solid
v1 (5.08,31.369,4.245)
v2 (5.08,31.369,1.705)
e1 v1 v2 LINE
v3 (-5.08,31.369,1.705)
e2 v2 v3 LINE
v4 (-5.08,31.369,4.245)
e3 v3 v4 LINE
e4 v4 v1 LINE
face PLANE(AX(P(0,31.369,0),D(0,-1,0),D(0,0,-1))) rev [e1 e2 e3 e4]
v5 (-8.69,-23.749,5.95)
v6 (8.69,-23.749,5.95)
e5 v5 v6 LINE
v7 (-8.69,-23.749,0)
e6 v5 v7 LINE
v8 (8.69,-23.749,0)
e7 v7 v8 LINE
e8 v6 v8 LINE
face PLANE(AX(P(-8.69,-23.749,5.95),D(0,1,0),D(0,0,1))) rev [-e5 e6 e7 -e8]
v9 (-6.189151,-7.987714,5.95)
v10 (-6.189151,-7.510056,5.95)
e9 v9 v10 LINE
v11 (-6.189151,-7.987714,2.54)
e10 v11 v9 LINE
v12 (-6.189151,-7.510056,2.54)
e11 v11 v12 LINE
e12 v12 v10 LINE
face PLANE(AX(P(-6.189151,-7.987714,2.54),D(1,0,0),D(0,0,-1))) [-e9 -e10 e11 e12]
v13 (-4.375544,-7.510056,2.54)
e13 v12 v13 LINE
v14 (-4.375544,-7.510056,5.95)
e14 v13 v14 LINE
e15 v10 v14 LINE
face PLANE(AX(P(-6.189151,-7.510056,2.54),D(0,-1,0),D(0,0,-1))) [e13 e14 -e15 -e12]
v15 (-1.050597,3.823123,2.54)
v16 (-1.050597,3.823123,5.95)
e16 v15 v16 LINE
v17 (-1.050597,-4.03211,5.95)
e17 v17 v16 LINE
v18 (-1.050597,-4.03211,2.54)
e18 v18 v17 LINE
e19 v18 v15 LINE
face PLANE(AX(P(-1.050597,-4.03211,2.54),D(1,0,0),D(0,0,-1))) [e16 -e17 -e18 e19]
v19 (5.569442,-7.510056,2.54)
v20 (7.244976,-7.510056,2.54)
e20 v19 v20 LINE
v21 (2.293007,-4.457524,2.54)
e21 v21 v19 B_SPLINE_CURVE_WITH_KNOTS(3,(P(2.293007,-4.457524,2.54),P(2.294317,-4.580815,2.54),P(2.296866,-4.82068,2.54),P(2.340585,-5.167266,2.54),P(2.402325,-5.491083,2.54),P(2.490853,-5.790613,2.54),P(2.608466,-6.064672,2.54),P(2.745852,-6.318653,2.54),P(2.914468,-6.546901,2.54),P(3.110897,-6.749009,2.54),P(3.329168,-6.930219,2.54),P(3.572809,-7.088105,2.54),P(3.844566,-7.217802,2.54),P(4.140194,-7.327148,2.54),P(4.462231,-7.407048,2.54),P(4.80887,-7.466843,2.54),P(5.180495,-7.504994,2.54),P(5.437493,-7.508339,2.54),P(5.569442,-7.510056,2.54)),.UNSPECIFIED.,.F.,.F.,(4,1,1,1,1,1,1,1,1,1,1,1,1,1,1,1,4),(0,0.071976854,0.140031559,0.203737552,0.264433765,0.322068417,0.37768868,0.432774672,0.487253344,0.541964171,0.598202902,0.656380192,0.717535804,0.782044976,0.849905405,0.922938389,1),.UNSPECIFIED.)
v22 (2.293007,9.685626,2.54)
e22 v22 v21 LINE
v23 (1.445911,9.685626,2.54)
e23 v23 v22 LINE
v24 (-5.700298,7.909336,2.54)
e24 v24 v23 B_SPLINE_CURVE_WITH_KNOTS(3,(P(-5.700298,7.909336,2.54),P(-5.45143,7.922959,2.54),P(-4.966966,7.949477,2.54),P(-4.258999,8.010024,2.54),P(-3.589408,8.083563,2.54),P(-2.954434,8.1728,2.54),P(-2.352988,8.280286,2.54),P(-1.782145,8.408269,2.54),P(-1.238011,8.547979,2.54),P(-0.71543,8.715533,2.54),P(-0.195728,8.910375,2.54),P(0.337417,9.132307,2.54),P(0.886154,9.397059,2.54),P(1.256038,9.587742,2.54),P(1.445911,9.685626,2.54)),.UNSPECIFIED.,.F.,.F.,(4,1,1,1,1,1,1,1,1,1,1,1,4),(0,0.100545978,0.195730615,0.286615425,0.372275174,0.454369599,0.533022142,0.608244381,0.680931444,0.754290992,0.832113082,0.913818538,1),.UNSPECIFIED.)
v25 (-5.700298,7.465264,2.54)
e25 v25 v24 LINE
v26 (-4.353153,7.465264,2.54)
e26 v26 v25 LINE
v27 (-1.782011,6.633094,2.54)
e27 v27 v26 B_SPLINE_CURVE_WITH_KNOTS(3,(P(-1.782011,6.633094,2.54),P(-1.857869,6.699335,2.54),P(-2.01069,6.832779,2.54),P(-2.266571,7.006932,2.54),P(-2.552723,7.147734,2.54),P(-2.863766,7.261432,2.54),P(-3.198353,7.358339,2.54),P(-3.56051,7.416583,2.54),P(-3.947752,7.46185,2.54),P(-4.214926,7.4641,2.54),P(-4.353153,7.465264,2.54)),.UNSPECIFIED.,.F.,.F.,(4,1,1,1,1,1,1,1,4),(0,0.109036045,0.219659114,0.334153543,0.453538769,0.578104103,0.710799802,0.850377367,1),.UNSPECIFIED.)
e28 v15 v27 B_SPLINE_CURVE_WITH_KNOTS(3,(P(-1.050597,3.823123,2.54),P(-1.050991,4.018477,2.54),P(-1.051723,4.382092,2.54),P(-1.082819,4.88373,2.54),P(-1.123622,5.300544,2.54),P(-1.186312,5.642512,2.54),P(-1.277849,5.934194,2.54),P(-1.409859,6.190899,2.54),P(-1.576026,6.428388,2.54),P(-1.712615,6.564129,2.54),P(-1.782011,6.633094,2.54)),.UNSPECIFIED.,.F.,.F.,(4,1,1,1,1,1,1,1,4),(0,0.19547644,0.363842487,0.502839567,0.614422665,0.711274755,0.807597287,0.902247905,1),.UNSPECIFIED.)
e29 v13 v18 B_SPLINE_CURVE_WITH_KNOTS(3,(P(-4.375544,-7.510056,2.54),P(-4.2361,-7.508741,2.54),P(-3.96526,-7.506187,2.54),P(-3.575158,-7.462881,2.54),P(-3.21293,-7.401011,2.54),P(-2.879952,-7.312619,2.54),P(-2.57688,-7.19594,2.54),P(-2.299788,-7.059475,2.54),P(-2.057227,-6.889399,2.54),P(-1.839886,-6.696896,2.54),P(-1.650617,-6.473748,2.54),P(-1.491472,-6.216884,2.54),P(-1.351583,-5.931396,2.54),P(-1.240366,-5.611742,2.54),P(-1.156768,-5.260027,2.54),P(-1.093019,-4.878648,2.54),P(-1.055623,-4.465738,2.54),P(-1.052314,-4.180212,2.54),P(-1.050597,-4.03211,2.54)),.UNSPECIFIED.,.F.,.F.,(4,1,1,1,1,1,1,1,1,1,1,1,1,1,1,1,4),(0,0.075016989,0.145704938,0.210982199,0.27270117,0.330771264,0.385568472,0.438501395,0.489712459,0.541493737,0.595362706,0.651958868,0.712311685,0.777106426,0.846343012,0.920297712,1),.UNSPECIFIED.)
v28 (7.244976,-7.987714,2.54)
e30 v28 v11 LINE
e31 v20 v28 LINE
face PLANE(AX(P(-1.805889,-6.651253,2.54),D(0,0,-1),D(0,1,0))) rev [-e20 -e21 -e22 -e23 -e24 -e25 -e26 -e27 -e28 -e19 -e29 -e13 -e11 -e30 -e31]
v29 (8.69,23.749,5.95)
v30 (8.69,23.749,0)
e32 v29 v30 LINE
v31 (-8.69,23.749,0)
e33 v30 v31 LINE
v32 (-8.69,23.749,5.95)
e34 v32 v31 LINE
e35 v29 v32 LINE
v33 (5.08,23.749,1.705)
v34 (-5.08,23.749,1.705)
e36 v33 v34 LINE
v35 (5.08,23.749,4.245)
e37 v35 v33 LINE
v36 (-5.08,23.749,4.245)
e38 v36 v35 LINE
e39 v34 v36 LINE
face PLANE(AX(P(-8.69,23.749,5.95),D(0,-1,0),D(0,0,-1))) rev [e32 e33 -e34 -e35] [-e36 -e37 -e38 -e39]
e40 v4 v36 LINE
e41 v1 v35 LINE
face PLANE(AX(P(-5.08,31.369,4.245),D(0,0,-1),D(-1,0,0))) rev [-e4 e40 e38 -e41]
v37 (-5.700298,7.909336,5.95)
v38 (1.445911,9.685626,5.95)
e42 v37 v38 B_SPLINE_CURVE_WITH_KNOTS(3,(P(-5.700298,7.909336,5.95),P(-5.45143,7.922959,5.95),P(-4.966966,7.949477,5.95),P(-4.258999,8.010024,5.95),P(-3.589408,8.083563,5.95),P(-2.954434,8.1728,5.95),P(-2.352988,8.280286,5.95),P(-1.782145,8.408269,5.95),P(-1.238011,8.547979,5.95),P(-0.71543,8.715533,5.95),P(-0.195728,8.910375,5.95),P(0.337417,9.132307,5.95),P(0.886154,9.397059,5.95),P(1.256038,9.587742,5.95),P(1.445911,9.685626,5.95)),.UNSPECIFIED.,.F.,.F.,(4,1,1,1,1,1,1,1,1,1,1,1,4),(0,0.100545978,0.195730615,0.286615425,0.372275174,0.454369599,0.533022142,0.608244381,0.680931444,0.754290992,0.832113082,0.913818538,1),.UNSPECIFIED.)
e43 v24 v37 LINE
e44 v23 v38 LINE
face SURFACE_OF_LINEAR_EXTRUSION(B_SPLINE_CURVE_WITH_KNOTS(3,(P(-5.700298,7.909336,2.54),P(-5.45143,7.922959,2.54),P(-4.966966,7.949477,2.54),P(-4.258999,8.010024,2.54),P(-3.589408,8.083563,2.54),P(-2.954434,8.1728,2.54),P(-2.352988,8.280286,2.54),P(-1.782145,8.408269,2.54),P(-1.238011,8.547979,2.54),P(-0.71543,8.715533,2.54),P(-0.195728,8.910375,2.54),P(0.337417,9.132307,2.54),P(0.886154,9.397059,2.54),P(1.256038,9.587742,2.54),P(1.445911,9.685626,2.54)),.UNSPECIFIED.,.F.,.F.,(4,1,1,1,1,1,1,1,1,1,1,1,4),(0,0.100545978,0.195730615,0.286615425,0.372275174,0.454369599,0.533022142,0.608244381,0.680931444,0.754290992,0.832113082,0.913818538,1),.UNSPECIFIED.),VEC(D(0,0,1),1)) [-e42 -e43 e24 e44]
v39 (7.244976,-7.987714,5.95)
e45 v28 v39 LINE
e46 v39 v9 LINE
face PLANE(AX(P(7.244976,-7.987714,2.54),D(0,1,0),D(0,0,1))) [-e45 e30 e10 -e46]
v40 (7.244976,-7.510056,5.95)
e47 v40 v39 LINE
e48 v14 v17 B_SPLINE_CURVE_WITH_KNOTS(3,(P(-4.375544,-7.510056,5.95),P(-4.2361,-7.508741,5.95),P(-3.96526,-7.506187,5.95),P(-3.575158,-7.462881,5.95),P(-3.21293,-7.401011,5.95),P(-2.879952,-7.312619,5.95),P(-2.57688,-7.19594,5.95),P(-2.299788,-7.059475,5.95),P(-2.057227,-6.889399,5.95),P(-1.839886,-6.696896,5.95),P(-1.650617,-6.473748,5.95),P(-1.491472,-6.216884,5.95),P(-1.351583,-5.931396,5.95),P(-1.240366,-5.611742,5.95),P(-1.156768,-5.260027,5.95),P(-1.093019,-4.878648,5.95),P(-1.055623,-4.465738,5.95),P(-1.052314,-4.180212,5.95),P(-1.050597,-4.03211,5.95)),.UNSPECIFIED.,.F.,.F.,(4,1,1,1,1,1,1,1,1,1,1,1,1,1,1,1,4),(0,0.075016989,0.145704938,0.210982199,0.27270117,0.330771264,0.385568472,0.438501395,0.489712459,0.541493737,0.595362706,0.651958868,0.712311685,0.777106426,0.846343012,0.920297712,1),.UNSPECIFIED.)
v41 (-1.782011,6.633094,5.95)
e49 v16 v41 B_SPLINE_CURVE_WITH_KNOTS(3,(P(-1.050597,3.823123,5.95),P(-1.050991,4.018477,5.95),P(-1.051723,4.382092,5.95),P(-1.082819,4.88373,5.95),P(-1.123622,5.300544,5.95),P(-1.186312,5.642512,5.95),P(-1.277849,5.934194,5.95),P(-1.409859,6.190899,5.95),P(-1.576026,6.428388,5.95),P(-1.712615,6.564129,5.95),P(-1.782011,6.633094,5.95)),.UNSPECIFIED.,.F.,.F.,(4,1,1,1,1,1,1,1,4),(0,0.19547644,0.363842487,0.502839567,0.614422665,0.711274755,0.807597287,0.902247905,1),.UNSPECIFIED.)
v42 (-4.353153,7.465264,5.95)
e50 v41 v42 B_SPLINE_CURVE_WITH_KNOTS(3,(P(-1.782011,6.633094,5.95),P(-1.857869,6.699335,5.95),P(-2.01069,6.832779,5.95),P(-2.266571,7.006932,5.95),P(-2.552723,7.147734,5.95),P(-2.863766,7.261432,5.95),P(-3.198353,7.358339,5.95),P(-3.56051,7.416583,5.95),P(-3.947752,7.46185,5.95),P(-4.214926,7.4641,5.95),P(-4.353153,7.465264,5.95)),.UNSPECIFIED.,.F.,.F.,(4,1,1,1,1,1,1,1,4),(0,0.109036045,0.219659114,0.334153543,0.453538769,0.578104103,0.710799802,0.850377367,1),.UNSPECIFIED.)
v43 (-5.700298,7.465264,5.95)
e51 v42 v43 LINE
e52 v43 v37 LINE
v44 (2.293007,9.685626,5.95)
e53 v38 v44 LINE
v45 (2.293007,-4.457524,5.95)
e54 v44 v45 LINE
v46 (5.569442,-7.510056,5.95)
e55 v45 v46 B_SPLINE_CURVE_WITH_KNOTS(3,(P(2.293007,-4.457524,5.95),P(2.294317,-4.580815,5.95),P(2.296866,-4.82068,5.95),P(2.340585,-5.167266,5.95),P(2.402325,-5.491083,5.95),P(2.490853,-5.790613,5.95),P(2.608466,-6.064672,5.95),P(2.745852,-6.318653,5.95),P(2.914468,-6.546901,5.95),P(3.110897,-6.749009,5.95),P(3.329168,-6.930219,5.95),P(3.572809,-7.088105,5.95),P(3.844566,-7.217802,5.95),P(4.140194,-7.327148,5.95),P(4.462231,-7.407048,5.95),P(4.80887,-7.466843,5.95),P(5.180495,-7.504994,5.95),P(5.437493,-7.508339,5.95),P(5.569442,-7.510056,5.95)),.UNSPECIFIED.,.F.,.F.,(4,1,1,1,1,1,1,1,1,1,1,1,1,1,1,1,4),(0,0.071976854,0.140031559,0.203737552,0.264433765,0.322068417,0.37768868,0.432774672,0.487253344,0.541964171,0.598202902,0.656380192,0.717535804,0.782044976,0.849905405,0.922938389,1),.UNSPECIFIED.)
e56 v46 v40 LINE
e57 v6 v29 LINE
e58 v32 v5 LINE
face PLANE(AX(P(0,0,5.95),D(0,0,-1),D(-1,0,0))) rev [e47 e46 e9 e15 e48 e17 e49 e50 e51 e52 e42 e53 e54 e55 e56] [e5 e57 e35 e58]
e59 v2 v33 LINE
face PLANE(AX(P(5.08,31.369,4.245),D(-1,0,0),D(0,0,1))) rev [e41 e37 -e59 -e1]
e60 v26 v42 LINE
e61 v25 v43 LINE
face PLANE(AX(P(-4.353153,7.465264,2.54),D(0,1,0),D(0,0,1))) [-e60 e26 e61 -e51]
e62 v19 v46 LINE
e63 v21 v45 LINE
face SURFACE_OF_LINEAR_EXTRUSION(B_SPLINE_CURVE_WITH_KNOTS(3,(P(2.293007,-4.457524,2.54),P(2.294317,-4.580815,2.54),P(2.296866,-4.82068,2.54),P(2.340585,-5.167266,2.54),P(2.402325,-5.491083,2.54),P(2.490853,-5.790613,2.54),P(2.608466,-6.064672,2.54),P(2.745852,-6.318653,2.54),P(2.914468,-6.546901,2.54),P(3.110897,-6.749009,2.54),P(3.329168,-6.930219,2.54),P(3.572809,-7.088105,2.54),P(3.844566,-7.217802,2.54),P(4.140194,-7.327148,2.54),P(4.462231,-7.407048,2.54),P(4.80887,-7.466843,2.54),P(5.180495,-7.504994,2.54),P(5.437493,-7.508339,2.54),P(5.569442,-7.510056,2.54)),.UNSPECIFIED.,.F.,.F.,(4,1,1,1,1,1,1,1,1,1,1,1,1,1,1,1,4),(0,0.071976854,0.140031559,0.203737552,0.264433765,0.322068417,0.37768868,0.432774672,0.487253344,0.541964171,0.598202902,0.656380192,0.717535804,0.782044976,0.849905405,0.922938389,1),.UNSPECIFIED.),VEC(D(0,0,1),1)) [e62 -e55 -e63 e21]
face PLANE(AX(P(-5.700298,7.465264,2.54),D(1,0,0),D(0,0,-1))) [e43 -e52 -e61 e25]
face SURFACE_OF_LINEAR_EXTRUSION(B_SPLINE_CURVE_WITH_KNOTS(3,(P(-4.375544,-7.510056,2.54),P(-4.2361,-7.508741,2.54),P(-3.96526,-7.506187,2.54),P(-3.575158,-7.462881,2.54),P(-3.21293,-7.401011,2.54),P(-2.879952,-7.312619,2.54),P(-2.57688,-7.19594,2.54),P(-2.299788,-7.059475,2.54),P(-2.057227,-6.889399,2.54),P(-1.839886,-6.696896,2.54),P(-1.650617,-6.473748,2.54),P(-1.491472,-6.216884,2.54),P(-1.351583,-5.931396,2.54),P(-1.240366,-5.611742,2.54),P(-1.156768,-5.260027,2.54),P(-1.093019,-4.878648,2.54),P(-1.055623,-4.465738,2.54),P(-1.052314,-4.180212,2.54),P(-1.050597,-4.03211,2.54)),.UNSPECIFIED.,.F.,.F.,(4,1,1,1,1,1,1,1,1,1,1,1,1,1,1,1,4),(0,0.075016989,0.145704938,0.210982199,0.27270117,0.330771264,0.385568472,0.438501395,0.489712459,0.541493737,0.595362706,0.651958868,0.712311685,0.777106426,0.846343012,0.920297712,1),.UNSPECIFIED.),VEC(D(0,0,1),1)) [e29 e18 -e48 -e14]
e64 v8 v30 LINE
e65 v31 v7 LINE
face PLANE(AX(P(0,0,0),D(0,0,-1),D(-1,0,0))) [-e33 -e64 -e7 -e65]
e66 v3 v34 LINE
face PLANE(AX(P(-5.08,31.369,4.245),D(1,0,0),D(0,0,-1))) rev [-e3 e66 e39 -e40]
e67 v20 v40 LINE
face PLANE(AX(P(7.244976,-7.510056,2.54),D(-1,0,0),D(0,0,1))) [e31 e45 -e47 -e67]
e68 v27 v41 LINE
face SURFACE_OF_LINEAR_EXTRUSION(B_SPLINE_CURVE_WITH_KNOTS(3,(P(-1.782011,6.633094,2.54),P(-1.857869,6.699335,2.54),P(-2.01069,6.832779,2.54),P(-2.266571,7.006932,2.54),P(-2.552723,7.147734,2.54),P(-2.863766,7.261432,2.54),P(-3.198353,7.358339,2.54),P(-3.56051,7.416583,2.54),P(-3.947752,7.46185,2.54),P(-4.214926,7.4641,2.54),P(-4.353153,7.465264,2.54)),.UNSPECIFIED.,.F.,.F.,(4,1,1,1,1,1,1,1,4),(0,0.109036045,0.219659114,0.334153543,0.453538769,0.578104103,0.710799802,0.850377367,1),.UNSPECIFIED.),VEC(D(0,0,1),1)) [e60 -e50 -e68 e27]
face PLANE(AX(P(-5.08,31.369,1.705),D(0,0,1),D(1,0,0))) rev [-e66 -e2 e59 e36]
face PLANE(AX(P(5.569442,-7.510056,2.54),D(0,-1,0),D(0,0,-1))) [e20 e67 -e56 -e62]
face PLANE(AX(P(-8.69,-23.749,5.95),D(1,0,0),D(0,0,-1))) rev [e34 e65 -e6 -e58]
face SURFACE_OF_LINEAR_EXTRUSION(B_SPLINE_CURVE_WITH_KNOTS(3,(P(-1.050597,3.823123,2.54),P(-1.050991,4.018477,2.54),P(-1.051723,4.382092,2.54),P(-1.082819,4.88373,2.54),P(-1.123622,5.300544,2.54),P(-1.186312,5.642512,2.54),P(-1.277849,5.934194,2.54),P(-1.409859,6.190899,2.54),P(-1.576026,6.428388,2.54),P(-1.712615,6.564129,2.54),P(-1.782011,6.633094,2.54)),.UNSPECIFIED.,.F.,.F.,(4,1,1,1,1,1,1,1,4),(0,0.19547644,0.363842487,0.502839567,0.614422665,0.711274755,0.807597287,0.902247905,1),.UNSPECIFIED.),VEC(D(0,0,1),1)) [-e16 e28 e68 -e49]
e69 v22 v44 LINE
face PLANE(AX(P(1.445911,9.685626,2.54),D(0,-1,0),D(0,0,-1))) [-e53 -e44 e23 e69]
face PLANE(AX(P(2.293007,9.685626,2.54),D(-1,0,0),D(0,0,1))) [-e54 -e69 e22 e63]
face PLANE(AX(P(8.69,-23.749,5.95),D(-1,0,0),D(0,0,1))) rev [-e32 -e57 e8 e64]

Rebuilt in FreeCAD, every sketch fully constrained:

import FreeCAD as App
import Part
import Sketcher
from FreeCAD import Vector
Q = App.Units.Quantity

doc = App.newDocument("Part")
body = doc.addObject("PartDesign::Body", "Body")

sketch1 = body.newObject("Sketcher::SketchObject", "Sketch")
sketch1.AttachmentSupport = (doc.getObject("XY_Plane"), [""])
sketch1.MapMode = "FlatFace"
sketch1.addGeometry([
    Part.LineSegment(Vector(-9, 24, 0), Vector(-9, -24, 0)),
    Part.LineSegment(Vector(-9, -24, 0), Vector(9, -24, 0)),
    Part.LineSegment(Vector(9, -24, 0), Vector(9, 24, 0)),
    Part.LineSegment(Vector(9, 24, 0), Vector(-9, 24, 0)),
], False)
sketch1.addConstraint([
    Sketcher.Constraint("Coincident", 0, 2, 1, 1),
    Sketcher.Constraint("Coincident", 1, 2, 2, 1),
    Sketcher.Constraint("Coincident", 2, 2, 3, 1),
    Sketcher.Constraint("Coincident", 3, 2, 0, 1),
    Sketcher.Constraint("Vertical", 0),
    Sketcher.Constraint("Horizontal", 1),
    Sketcher.Constraint("Vertical", 2),
    Sketcher.Constraint("Horizontal", 3),
    Sketcher.Constraint("Symmetric", 0, 2, 2, 2, -1, 1),
    Sketcher.Constraint("DistanceY", 0, 2, 0, 1, Q("1.87 in")),
    Sketcher.Constraint("DistanceX", 1, 1, 1, 2, Q("17.38 mm")),
])
pad1 = body.newObject("PartDesign::Pad", "Pad")
pad1.Profile = sketch1
pad1.Length = 5.95

sketch2 = body.newObject("Sketcher::SketchObject", "Sketch001")
sketch2.AttachmentSupport = (doc.getObject("XY_Plane"), [""])
sketch2.MapMode = "FlatFace"
sketch2.AttachmentOffset = App.Placement(Vector(0, 0, 5.95), App.Rotation())
sketch2.addGeometry([
    Part.LineSegment(Vector(-4.375544, -7.510056, 0), Vector(-6.189151, -7.510056, 0)),
    Part.LineSegment(Vector(-6.189151, -7.510056, 0), Vector(-6.189151, -7.987714, 0)),
    Part.LineSegment(Vector(-6.189151, -7.987714, 0), Vector(7.244976, -7.987714, 0)),
    Part.LineSegment(Vector(7.244976, -7.987714, 0), Vector(7.244976, -7.510056, 0)),
    Part.LineSegment(Vector(7.244976, -7.510056, 0), Vector(5.569442, -7.510056, 0)),
    Part.BSplineCurve([Vector(2.293007, -4.457524, 0), Vector(2.294317, -4.580815, 0), Vector(2.296866, -4.82068, 0), Vector(2.340585, -5.167266, 0), Vector(2.402325, -5.491083, 0), Vector(2.490853, -5.790613, 0), Vector(2.608466, -6.064672, 0), Vector(2.745852, -6.318653, 0), Vector(2.914468, -6.546901, 0), Vector(3.110897, -6.749009, 0), Vector(3.329168, -6.930219, 0), Vector(3.572809, -7.088105, 0), Vector(3.844566, -7.217802, 0), Vector(4.140194, -7.327148, 0), Vector(4.462231, -7.407048, 0), Vector(4.80887, -7.466843, 0), Vector(5.180495, -7.504994, 0), Vector(5.437493, -7.508339, 0), Vector(5.569442, -7.510056, 0)], [4, 1, 1, 1, 1, 1, 1, 1, 1, 1, 1, 1, 1, 1, 1, 1, 4], [0, 1.151629664, 2.240504938, 3.259800832, 4.230940235, 5.153094675, 6.043018888, 6.924394745, 7.796053501, 8.671426729, 9.571246426, 10.502083077, 11.480572872, 12.512719618, 13.598486478, 14.767014217, 16], False, 3, [1, 1, 1, 1, 1, 1, 1, 1, 1, 1, 1, 1, 1, 1, 1, 1, 1, 1, 1], False),
    Part.LineSegment(Vector(2.293007, -4.457524, 0), Vector(2.293007, 9.685626, 0)),
    Part.LineSegment(Vector(2.293007, 9.685626, 0), Vector(1.445911, 9.685626, 0)),
    Part.BSplineCurve([Vector(-5.700298, 7.909336, 0), Vector(-5.45143, 7.922959, 0), Vector(-4.966966, 7.949477, 0), Vector(-4.258999, 8.010024, 0), Vector(-3.589408, 8.083563, 0), Vector(-2.954434, 8.1728, 0), Vector(-2.352988, 8.280286, 0), Vector(-1.782145, 8.408269, 0), Vector(-1.238011, 8.547979, 0), Vector(-0.71543, 8.715533, 0), Vector(-0.195728, 8.910375, 0), Vector(0.337417, 9.132307, 0), Vector(0.886154, 9.397059, 0), Vector(1.256038, 9.587742, 0), Vector(1.445911, 9.685626, 0)], [4, 1, 1, 1, 1, 1, 1, 1, 1, 1, 1, 1, 4], [0, 1.206551741, 2.348767378, 3.4393851, 4.467302093, 5.452435193, 6.396265705, 7.29893257, 8.171177332, 9.051491902, 9.98535699, 10.965822455, 12], False, 3, [1, 1, 1, 1, 1, 1, 1, 1, 1, 1, 1, 1, 1, 1, 1], False),
    Part.LineSegment(Vector(-5.700298, 7.909336, 0), Vector(-5.700298, 7.465264, 0)),
    Part.LineSegment(Vector(-5.700298, 7.465264, 0), Vector(-4.353153, 7.465264, 0)),
    Part.BSplineCurve([Vector(-1.782011, 6.633094, 0), Vector(-1.857869, 6.699335, 0), Vector(-2.01069, 6.832779, 0), Vector(-2.266571, 7.006932, 0), Vector(-2.552723, 7.147734, 0), Vector(-2.863766, 7.261432, 0), Vector(-3.198353, 7.358339, 0), Vector(-3.56051, 7.416583, 0), Vector(-3.947752, 7.46185, 0), Vector(-4.214926, 7.4641, 0), Vector(-4.353153, 7.465264, 0)], [4, 1, 1, 1, 1, 1, 1, 1, 4], [0, 0.872288361, 1.757272915, 2.673228345, 3.628310148, 4.624832827, 5.686398416, 6.803018934, 8], False, 3, [1, 1, 1, 1, 1, 1, 1, 1, 1, 1, 1], False),
    Part.BSplineCurve([Vector(-1.050597, 3.823123, 0), Vector(-1.050991, 4.018477, 0), Vector(-1.051723, 4.382092, 0), Vector(-1.082819, 4.88373, 0), Vector(-1.123622, 5.300544, 0), Vector(-1.186312, 5.642512, 0), Vector(-1.277849, 5.934194, 0), Vector(-1.409859, 6.190899, 0), Vector(-1.576026, 6.428388, 0), Vector(-1.712615, 6.564129, 0), Vector(-1.782011, 6.633094, 0)], [4, 1, 1, 1, 1, 1, 1, 1, 4], [0, 1.563811524, 2.910739897, 4.022716534, 4.915381324, 5.690198038, 6.460778295, 7.217983238, 8], False, 3, [1, 1, 1, 1, 1, 1, 1, 1, 1, 1, 1], False),
    Part.LineSegment(Vector(-1.050597, 3.823123, 0), Vector(-1.050597, -4.03211, 0)),
    Part.BSplineCurve([Vector(-4.375544, -7.510056, 0), Vector(-4.2361, -7.508741, 0), Vector(-3.96526, -7.506187, 0), Vector(-3.575158, -7.462881, 0), Vector(-3.21293, -7.401011, 0), Vector(-2.879952, -7.312619, 0), Vector(-2.57688, -7.19594, 0), Vector(-2.299788, -7.059475, 0), Vector(-2.057227, -6.889399, 0), Vector(-1.839886, -6.696896, 0), Vector(-1.650617, -6.473748, 0), Vector(-1.491472, -6.216884, 0), Vector(-1.351583, -5.931396, 0), Vector(-1.240366, -5.611742, 0), Vector(-1.156768, -5.260027, 0), Vector(-1.093019, -4.878648, 0), Vector(-1.055623, -4.465738, 0), Vector(-1.052314, -4.180212, 0), Vector(-1.050597, -4.03211, 0)], [4, 1, 1, 1, 1, 1, 1, 1, 1, 1, 1, 1, 1, 1, 1, 1, 4], [0, 1.200271823, 2.331279013, 3.375715191, 4.363218718, 5.292340221, 6.169095557, 7.016022317, 7.835399336, 8.663899785, 9.525803296, 10.431341886, 11.396986964, 12.433702812, 13.541488193, 14.724763392, 16], False, 3, [1, 1, 1, 1, 1, 1, 1, 1, 1, 1, 1, 1, 1, 1, 1, 1, 1, 1, 1], False),
], False)
sketch2.addConstraint([
    Sketcher.Constraint("Block", 5),
    Sketcher.Constraint("Block", 8),
    Sketcher.Constraint("Block", 11),
    Sketcher.Constraint("Block", 12),
    Sketcher.Constraint("Block", 14),
    Sketcher.Constraint("Coincident", 0, 2, 1, 1),
    Sketcher.Constraint("Coincident", 1, 2, 2, 1),
    Sketcher.Constraint("Coincident", 2, 2, 3, 1),
    Sketcher.Constraint("Coincident", 3, 2, 4, 1),
    Sketcher.Constraint("Coincident", 4, 2, 5, 2),
    Sketcher.Constraint("Coincident", 5, 1, 6, 1),
    Sketcher.Constraint("Coincident", 6, 2, 7, 1),
    Sketcher.Constraint("Coincident", 7, 2, 8, 2),
    Sketcher.Constraint("Coincident", 8, 1, 9, 1),
    Sketcher.Constraint("Coincident", 9, 2, 10, 1),
    Sketcher.Constraint("Coincident", 10, 2, 11, 2),
    Sketcher.Constraint("Coincident", 12, 1, 13, 1),
    Sketcher.Constraint("Coincident", 13, 2, 14, 2),
    Sketcher.Constraint("Coincident", 14, 1, 0, 1),
    Sketcher.Constraint("Horizontal", 0),
    Sketcher.Constraint("Vertical", 1),
    Sketcher.Constraint("Horizontal", 2),
    Sketcher.Constraint("Vertical", 3),
    Sketcher.Constraint("Horizontal", 4),
    Sketcher.Constraint("Vertical", 6),
    Sketcher.Constraint("Horizontal", 7),
    Sketcher.Constraint("Vertical", 9),
    Sketcher.Constraint("Horizontal", 10),
    Sketcher.Constraint("DistanceX", 0, 2, 0, 1, Q("1.813607 mm")),
    Sketcher.Constraint("DistanceX", 2, 1, 2, 2, Q("13.434127 mm")),
    Sketcher.Constraint("DistanceY", 1, 2, 1, 1, Q("0.477658 mm")),
])
pocket1 = body.newObject("PartDesign::Pocket", "Pocket")
pocket1.Profile = sketch2
pocket1.Length = 3.41

sketch3 = body.newObject("Sketcher::SketchObject", "Sketch002")
sketch3.AttachmentSupport = (doc.getObject("XZ_Plane"), [""])
sketch3.MapMode = "FlatFace"
sketch3.AttachmentOffset = App.Placement(Vector(0, 0, -0.935 * 25.4), App.Rotation())
sketch3.addGeometry([
    Part.LineSegment(Vector(-5.1, 1.7, 0), Vector(-5.1, 4.2, 0)),
    Part.LineSegment(Vector(-5.1, 4.2, 0), Vector(5.1, 4.2, 0)),
    Part.LineSegment(Vector(5.1, 4.2, 0), Vector(5.1, 1.7, 0)),
    Part.LineSegment(Vector(5.1, 1.7, 0), Vector(-5.1, 1.7, 0)),
], False)
sketch3.addConstraint([
    Sketcher.Constraint("Coincident", 0, 2, 1, 1),
    Sketcher.Constraint("Coincident", 1, 2, 2, 1),
    Sketcher.Constraint("Coincident", 2, 2, 3, 1),
    Sketcher.Constraint("Coincident", 3, 2, 0, 1),
    Sketcher.Constraint("Vertical", 0),
    Sketcher.Constraint("Horizontal", 1),
    Sketcher.Constraint("Vertical", 2),
    Sketcher.Constraint("Horizontal", 3),
    Sketcher.Constraint("DistanceX", 1, 1, 1, 2, Q("0.4 in")),
    Sketcher.Constraint("DistanceY", 0, 1, 0, 2, Q("0.1 in")),
    Sketcher.Constraint("DistanceX", 0, 2, -1, 1, Q("0.2 in")),
    Sketcher.Constraint("DistanceY", -1, 1, 0, 2, Q("4.245 mm")),
])
pad2 = body.newObject("PartDesign::Pad", "Pad001")
pad2.Profile = sketch3
pad2.Length = Q("0.3 in")
pad2.Reversed = True

doc.recompute()
